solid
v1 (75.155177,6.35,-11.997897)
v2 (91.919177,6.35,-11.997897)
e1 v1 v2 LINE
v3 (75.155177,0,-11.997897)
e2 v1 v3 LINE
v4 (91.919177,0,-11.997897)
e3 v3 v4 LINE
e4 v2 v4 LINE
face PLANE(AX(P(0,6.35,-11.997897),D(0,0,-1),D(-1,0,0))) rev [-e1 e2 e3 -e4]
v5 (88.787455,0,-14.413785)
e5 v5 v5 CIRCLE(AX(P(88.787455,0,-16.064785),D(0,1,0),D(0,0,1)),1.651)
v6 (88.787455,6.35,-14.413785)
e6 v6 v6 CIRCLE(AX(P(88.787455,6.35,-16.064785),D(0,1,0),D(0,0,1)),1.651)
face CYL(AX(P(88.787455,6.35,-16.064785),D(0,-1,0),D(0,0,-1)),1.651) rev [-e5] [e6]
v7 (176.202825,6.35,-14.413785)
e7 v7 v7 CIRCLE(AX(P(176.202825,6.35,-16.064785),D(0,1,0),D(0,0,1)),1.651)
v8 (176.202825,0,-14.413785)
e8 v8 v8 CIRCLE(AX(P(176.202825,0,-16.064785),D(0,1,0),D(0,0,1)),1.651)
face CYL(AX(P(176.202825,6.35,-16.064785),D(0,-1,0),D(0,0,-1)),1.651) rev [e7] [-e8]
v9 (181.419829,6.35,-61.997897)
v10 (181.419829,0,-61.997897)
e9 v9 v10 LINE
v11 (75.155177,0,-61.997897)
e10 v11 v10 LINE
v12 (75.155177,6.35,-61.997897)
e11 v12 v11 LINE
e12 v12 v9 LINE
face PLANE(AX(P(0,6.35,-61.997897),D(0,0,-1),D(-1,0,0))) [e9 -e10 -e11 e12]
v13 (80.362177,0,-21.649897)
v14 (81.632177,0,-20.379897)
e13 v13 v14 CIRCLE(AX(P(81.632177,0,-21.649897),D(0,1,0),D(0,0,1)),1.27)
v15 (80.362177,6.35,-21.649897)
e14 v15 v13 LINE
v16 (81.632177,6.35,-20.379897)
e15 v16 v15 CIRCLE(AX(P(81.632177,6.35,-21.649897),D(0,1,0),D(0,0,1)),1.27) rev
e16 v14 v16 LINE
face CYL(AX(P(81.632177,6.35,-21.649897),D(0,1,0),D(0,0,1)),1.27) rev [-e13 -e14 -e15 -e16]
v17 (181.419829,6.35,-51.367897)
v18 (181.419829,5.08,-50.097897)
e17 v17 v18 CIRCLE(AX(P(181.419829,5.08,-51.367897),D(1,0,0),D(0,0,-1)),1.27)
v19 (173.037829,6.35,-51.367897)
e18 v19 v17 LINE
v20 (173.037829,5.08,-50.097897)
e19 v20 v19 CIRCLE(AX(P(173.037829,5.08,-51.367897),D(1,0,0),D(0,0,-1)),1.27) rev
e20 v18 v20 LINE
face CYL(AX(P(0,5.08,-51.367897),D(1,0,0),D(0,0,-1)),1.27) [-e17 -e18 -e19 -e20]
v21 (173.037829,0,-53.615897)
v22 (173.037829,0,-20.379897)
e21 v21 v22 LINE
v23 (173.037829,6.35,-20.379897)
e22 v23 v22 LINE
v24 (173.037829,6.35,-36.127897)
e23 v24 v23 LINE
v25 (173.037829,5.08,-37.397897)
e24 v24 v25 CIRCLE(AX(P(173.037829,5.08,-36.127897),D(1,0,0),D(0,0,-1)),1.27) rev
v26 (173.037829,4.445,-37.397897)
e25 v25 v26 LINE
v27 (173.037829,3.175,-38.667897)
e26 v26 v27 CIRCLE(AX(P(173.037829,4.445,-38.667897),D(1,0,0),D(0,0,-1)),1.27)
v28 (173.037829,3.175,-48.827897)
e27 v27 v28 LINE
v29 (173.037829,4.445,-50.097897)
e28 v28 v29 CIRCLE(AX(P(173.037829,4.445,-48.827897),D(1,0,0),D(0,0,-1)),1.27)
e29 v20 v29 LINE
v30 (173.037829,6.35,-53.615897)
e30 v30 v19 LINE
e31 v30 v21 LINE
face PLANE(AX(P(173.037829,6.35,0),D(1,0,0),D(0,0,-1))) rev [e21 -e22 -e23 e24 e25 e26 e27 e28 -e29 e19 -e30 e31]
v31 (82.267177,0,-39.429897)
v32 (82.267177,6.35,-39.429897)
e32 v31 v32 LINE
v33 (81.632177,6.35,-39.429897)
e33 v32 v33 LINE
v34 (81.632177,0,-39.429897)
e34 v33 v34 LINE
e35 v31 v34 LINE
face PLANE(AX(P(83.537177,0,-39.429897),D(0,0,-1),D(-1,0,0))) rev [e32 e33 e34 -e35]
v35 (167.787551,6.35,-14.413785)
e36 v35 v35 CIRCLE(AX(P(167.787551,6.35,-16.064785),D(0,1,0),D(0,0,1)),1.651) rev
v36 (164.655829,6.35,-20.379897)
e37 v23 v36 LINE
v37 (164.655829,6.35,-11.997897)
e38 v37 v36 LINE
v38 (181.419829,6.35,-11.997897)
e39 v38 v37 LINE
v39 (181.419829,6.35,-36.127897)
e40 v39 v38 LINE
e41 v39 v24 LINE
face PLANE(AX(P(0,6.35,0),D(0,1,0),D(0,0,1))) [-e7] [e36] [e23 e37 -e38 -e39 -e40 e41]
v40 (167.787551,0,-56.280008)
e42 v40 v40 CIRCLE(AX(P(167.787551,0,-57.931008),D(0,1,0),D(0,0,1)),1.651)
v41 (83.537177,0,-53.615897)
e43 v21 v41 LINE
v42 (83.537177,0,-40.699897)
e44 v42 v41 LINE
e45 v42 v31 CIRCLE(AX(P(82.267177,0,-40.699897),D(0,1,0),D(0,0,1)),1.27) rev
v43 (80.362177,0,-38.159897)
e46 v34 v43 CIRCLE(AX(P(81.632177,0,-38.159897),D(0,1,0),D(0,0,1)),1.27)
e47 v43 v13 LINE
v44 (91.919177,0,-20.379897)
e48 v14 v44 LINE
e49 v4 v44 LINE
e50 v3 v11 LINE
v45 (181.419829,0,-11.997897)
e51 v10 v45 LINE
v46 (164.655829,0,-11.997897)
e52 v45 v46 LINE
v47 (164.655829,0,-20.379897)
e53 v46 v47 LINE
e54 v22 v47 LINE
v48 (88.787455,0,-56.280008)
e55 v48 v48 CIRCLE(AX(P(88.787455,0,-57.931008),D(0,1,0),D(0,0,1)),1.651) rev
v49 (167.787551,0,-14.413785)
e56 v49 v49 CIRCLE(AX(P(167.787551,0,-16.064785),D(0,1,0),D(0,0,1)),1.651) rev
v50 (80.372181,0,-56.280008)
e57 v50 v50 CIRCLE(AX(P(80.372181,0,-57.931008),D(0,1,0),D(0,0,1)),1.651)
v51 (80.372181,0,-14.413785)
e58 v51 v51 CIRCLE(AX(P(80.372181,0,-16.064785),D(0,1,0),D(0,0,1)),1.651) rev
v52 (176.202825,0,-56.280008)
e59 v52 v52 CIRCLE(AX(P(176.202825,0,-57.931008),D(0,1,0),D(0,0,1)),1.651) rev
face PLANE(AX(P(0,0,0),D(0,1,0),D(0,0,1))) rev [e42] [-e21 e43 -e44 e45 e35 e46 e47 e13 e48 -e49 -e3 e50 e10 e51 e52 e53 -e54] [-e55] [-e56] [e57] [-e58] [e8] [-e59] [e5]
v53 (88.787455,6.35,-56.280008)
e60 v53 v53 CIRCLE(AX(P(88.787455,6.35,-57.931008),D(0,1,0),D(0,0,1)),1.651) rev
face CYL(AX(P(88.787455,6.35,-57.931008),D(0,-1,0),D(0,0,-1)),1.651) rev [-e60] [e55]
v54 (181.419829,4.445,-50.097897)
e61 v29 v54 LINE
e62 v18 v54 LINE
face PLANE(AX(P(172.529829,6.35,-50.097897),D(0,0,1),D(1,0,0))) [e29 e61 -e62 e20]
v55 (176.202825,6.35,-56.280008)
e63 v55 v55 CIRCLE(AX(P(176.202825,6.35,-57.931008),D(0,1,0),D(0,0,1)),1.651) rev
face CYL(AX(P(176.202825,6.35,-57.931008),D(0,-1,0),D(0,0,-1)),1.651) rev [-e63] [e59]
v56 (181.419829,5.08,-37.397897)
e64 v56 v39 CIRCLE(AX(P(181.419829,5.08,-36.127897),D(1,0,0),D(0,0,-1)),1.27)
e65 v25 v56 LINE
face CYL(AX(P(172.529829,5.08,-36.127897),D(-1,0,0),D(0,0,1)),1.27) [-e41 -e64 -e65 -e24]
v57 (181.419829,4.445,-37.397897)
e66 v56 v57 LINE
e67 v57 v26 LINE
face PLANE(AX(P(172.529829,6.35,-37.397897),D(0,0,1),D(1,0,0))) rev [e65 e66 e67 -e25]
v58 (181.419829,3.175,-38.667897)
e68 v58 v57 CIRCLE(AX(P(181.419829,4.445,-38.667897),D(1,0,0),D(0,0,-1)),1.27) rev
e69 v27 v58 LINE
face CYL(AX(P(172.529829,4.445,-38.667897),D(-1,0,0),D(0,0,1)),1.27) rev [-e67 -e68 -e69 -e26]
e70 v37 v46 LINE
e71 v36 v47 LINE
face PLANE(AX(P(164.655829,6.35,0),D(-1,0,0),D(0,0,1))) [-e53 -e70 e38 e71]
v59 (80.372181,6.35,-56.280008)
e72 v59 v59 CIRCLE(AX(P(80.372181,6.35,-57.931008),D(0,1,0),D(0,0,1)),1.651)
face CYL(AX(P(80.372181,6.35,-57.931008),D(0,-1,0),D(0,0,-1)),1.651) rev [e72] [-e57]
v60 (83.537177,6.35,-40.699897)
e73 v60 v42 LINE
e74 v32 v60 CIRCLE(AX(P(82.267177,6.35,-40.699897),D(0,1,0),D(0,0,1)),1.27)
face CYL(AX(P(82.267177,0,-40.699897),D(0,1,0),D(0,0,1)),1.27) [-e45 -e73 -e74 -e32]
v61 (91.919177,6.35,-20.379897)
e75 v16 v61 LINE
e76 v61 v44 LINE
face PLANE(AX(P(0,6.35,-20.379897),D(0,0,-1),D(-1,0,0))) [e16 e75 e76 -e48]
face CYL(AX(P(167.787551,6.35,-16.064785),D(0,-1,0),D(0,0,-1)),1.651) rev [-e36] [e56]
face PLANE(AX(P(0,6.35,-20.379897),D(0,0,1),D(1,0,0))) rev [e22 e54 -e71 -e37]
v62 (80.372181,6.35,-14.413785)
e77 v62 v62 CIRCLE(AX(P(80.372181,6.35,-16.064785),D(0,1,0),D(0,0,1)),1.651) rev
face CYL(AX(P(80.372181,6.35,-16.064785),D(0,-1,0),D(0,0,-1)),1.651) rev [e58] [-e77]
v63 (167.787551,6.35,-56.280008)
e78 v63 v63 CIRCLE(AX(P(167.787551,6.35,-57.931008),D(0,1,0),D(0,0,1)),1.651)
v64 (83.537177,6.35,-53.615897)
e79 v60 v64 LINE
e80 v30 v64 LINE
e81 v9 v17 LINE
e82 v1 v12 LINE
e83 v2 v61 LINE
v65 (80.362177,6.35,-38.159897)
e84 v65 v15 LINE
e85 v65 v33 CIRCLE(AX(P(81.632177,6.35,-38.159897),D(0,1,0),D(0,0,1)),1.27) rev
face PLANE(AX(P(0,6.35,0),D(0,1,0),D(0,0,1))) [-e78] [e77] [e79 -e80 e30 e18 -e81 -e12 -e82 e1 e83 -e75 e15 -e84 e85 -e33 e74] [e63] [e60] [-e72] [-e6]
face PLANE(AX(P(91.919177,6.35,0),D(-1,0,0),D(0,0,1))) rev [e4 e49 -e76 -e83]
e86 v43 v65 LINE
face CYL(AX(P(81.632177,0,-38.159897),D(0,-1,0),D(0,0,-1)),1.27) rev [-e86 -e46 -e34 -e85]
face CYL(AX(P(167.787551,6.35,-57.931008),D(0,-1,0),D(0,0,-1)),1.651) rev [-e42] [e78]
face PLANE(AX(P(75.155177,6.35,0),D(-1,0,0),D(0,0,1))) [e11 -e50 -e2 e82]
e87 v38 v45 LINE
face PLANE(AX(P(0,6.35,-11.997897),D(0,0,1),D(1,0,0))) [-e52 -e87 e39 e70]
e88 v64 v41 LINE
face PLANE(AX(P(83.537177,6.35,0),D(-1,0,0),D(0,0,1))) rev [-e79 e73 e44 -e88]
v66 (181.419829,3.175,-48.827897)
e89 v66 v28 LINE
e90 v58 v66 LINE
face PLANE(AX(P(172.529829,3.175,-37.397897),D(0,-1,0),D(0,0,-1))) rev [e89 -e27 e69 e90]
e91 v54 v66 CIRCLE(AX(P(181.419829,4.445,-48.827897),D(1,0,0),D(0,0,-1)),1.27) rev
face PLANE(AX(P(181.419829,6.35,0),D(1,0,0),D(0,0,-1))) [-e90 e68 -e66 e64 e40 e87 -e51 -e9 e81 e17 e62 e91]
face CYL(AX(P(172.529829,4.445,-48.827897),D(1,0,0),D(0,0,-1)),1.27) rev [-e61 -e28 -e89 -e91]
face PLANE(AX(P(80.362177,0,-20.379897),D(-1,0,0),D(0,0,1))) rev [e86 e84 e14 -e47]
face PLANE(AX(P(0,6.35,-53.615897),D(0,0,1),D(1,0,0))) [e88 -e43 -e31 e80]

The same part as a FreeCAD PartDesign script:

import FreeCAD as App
import Part
import Sketcher

V = App.Vector
Q = App.Units.Quantity


def edges_at(feature, points):
    """Names of the edges that pass closest to the given points."""
    edges = feature.Shape.Edges
    near = lambda p: min(range(len(edges)), key=lambda i: edges[i].distToShape(Part.Vertex(*p))[0])
    return sorted({f"Edge{near(p) + 1}" for p in points})


def add_polygon(sketch, points):
    """Adds a closed chain of lines whose ends are joined by coincident constraints."""
    first, n = sketch.GeometryCount, len(points)
    for a, b in zip(points, points[1:] + points[:1]):
        sketch.addGeometry(Part.LineSegment(App.Vector(*a, 0), App.Vector(*b, 0)), False)
    for i in range(n):
        sketch.addConstraint(Sketcher.Constraint("Coincident", first + i, 2, first + (i + 1) % n, 1))

doc = App.newDocument("Part")
body = doc.addObject("PartDesign::Body", "Body")

# Sketch on XZ plane
sketch1 = body.newObject("Sketcher::SketchObject", "Sketch")
sketch1.AttachmentSupport = (doc.getObject("XZ_Plane"), [""])
sketch1.MapMode = "FlatFace"
add_polygon(sketch1, [(75.2, -62), (75.2, -12), (91.9, -12), (91.9, -20.4), (83.5, -20.4), (83.5, -53.6), (173, -53.6), (173, -20.4), (164.7, -20.4), (164.7, -12), (181.4, -12), (181.4, -62)])  # lines 0-11
sketch1.addGeometry(Part.Circle(V(80.4, -16.1, 0), V(0, 0, 1), 1.7), False)  # 12
sketch1.addGeometry(Part.Circle(V(88.8, -16.1, 0), V(0, 0, 1), 1.7), False)  # 13
sketch1.addGeometry(Part.Circle(V(167.8, -16.1, 0), V(0, 0, 1), 1.7), False)  # 14
sketch1.addGeometry(Part.Circle(V(176.2, -16.1, 0), V(0, 0, 1), 1.7), False)  # 15
sketch1.addGeometry(Part.Circle(V(80.4, -57.9, 0), V(0, 0, 1), 1.7), False)  # 16
sketch1.addGeometry(Part.Circle(V(88.8, -57.9, 0), V(0, 0, 1), 1.7), False)  # 17
sketch1.addGeometry(Part.Circle(V(167.8, -57.9, 0), V(0, 0, 1), 1.7), False)  # 18
sketch1.addGeometry(Part.Circle(V(176.2, -57.9, 0), V(0, 0, 1), 1.7), False)  # 19
sketch1.addConstraint([
    Sketcher.Constraint("Vertical", 0),
    Sketcher.Constraint("Horizontal", 1),
    Sketcher.Constraint("Vertical", 2),
    Sketcher.Constraint("Horizontal", 3),
    Sketcher.Constraint("Vertical", 4),
    Sketcher.Constraint("Horizontal", 5),
    Sketcher.Constraint("Vertical", 6),
    Sketcher.Constraint("Horizontal", 7),
    Sketcher.Constraint("Vertical", 8),
    Sketcher.Constraint("Horizontal", 9),
    Sketcher.Constraint("Vertical", 10),
    Sketcher.Constraint("Horizontal", 11),
    Sketcher.Constraint("Equal", 12, 13),
    Sketcher.Constraint("Equal", 13, 14),
    Sketcher.Constraint("Equal", 14, 15),
    Sketcher.Constraint("Equal", 15, 16),
    Sketcher.Constraint("Equal", 16, 17),
    Sketcher.Constraint("Equal", 17, 18),
    Sketcher.Constraint("Equal", 18, 19),
    Sketcher.Constraint("Horizontal", 12, 3, 13, 3),
    Sketcher.Constraint("Horizontal", 13, 3, 14, 3),
    Sketcher.Constraint("Horizontal", 14, 3, 15, 3),
    Sketcher.Constraint("Horizontal", 16, 3, 17, 3),
    Sketcher.Constraint("Horizontal", 17, 3, 18, 3),
    Sketcher.Constraint("Horizontal", 18, 3, 19, 3),
    Sketcher.Constraint("Horizontal", 3, 2, 6, 2),
    Sketcher.Constraint("Horizontal", 1, 2, 8, 2),
    Sketcher.Constraint("Vertical", 12, 3, 16, 3),
    Sketcher.Constraint("Vertical", 13, 3, 17, 3),
    Sketcher.Constraint("Vertical", 14, 3, 18, 3),
    Sketcher.Constraint("Vertical", 15, 3, 19, 3),
    Sketcher.Constraint("Equal", 3, 7),
    Sketcher.Constraint("Equal", 1, 9),
    Sketcher.Constraint("Equal", 7, 2),
    Sketcher.Constraint("Diameter", 12, Q("0.13 in")),
    Sketcher.Constraint("DistanceX", 1, 1, 1, 2, Q("0.66 in")),
    Sketcher.Constraint("DistanceX", 3, 2, 3, 1, Q("0.33 in")),
    Sketcher.Constraint("DistanceY", 10, 2, 5, 2, Q("0.33 in")),
    Sketcher.Constraint("DistanceY", 0, 1, 0, 2, 50.0),
    Sketcher.Constraint("DistanceX", 5, 1, 5, 2, 89.500652),
    Sketcher.Constraint("DistanceX", -1, 1, 12, 3, 80.372181),
    Sketcher.Constraint("DistanceX", -1, 1, 14, 3, 167.787551),
    Sketcher.Constraint("DistanceY", 16, 3, -1, 1, 57.931008),
    Sketcher.Constraint("DistanceX", -1, 1, 5, 2, 173.037829),
    Sketcher.Constraint("DistanceX", 13, 3, 15, 3, 87.41537),
    Sketcher.Constraint("DistanceY", 12, 3, 0, 2, 4.066888),
    Sketcher.Constraint("DistanceX", 0, 2, 13, 3, 13.632278),
    Sketcher.Constraint("DistanceY", 16, 3, 0, 2, 45.933112),
])
pad1 = body.newObject("PartDesign::Pad", "Pad")
pad1.Profile = sketch1
pad1.Length = Q("0.25 in")
pad1.Reversed = True

# Sketch on YZ plane
sketch2 = body.newObject("Sketcher::SketchObject", "Sketch001")
sketch2.AttachmentSupport = (doc.getObject("YZ_Plane"), [""])
sketch2.MapMode = "FlatFace"
sketch2.AttachmentOffset = App.Placement(V(0, 0, 181.419829), App.Rotation())
add_polygon(sketch2, [(6.3, -37.4), (3.2, -37.4), (3.2, -50.1), (6.3, -50.1)])  # lines 0-3
sketch2.addConstraint([
    Sketcher.Constraint("Horizontal", 0),
    Sketcher.Constraint("Vertical", 1),
    Sketcher.Constraint("Horizontal", 2),
    Sketcher.Constraint("Vertical", 3),
    Sketcher.Constraint("DistanceY", 1, 2, 1, 1, Q("0.5 in")),
    Sketcher.Constraint("DistanceX", 0, 2, 0, 1, Q("0.125 in")),
    Sketcher.Constraint("DistanceX", -1, 1, 2, 2, Q("0.25 in")),
    Sketcher.Constraint("DistanceY", 0, 2, -1, 1, 37.397897),
])
pocket1 = body.newObject("PartDesign::Pocket", "Pocket")
pocket1.Profile = sketch2
pocket1.Length = Q("0.35 in")
doc.recompute()

fillet = body.newObject("PartDesign::Fillet", "Fillet")
fillet.Base = (pocket1, edges_at(pocket1, [
    (177.229, 6.35, -37.398),
    (177.229, 6.35, -50.098),
    (177.229, 3.175, -50.098),
    (177.229, 3.175, -37.398),
]))
fillet.Radius = Q("0.05 in")

# Sketch on XZ plane
sketch3 = body.newObject("Sketcher::SketchObject", "Sketch002")
sketch3.AttachmentSupport = (doc.getObject("XZ_Plane"), [""])
sketch3.MapMode = "FlatFace"
sketch3.AttachmentOffset = App.Placement(V(0, 0, -0.25 * 25.4), App.Rotation())
add_polygon(sketch3, [(80.4, -39.4), (80.4, -20.4), (83.5, -20.4), (83.5, -39.4)])  # lines 0-3
sketch3.addConstraint([
    Sketcher.Constraint("Vertical", 0),
    Sketcher.Constraint("Horizontal", 1),
    Sketcher.Constraint("Vertical", 2),
    Sketcher.Constraint("Horizontal", 3),
    Sketcher.Constraint("DistanceY", 0, 1, 0, 2, Q("0.75 in")),
    Sketcher.Constraint("DistanceX", 1, 1, 1, 2, Q("0.125 in")),
    Sketcher.Constraint("DistanceX", -1, 1, 0, 2, 80.362177),
    Sketcher.Constraint("DistanceY", 0, 2, -1, 1, 20.379897),
])
pocket2 = body.newObject("PartDesign::Pocket", "Pocket001")
pocket2.Profile = sketch3
pocket2.Type = "ThroughAll"
pocket2.Reversed = True
doc.recompute()

fillet2 = body.newObject("PartDesign::Fillet", "Fillet001")
fillet2.Base = (pocket2, edges_at(pocket2, [(83.537, 3.175, -39.43), (80.362, 3.175, -20.38), (80.362, 3.175, -39.43)]))
fillet2.Radius = Q("0.05 in")

doc.recompute()
